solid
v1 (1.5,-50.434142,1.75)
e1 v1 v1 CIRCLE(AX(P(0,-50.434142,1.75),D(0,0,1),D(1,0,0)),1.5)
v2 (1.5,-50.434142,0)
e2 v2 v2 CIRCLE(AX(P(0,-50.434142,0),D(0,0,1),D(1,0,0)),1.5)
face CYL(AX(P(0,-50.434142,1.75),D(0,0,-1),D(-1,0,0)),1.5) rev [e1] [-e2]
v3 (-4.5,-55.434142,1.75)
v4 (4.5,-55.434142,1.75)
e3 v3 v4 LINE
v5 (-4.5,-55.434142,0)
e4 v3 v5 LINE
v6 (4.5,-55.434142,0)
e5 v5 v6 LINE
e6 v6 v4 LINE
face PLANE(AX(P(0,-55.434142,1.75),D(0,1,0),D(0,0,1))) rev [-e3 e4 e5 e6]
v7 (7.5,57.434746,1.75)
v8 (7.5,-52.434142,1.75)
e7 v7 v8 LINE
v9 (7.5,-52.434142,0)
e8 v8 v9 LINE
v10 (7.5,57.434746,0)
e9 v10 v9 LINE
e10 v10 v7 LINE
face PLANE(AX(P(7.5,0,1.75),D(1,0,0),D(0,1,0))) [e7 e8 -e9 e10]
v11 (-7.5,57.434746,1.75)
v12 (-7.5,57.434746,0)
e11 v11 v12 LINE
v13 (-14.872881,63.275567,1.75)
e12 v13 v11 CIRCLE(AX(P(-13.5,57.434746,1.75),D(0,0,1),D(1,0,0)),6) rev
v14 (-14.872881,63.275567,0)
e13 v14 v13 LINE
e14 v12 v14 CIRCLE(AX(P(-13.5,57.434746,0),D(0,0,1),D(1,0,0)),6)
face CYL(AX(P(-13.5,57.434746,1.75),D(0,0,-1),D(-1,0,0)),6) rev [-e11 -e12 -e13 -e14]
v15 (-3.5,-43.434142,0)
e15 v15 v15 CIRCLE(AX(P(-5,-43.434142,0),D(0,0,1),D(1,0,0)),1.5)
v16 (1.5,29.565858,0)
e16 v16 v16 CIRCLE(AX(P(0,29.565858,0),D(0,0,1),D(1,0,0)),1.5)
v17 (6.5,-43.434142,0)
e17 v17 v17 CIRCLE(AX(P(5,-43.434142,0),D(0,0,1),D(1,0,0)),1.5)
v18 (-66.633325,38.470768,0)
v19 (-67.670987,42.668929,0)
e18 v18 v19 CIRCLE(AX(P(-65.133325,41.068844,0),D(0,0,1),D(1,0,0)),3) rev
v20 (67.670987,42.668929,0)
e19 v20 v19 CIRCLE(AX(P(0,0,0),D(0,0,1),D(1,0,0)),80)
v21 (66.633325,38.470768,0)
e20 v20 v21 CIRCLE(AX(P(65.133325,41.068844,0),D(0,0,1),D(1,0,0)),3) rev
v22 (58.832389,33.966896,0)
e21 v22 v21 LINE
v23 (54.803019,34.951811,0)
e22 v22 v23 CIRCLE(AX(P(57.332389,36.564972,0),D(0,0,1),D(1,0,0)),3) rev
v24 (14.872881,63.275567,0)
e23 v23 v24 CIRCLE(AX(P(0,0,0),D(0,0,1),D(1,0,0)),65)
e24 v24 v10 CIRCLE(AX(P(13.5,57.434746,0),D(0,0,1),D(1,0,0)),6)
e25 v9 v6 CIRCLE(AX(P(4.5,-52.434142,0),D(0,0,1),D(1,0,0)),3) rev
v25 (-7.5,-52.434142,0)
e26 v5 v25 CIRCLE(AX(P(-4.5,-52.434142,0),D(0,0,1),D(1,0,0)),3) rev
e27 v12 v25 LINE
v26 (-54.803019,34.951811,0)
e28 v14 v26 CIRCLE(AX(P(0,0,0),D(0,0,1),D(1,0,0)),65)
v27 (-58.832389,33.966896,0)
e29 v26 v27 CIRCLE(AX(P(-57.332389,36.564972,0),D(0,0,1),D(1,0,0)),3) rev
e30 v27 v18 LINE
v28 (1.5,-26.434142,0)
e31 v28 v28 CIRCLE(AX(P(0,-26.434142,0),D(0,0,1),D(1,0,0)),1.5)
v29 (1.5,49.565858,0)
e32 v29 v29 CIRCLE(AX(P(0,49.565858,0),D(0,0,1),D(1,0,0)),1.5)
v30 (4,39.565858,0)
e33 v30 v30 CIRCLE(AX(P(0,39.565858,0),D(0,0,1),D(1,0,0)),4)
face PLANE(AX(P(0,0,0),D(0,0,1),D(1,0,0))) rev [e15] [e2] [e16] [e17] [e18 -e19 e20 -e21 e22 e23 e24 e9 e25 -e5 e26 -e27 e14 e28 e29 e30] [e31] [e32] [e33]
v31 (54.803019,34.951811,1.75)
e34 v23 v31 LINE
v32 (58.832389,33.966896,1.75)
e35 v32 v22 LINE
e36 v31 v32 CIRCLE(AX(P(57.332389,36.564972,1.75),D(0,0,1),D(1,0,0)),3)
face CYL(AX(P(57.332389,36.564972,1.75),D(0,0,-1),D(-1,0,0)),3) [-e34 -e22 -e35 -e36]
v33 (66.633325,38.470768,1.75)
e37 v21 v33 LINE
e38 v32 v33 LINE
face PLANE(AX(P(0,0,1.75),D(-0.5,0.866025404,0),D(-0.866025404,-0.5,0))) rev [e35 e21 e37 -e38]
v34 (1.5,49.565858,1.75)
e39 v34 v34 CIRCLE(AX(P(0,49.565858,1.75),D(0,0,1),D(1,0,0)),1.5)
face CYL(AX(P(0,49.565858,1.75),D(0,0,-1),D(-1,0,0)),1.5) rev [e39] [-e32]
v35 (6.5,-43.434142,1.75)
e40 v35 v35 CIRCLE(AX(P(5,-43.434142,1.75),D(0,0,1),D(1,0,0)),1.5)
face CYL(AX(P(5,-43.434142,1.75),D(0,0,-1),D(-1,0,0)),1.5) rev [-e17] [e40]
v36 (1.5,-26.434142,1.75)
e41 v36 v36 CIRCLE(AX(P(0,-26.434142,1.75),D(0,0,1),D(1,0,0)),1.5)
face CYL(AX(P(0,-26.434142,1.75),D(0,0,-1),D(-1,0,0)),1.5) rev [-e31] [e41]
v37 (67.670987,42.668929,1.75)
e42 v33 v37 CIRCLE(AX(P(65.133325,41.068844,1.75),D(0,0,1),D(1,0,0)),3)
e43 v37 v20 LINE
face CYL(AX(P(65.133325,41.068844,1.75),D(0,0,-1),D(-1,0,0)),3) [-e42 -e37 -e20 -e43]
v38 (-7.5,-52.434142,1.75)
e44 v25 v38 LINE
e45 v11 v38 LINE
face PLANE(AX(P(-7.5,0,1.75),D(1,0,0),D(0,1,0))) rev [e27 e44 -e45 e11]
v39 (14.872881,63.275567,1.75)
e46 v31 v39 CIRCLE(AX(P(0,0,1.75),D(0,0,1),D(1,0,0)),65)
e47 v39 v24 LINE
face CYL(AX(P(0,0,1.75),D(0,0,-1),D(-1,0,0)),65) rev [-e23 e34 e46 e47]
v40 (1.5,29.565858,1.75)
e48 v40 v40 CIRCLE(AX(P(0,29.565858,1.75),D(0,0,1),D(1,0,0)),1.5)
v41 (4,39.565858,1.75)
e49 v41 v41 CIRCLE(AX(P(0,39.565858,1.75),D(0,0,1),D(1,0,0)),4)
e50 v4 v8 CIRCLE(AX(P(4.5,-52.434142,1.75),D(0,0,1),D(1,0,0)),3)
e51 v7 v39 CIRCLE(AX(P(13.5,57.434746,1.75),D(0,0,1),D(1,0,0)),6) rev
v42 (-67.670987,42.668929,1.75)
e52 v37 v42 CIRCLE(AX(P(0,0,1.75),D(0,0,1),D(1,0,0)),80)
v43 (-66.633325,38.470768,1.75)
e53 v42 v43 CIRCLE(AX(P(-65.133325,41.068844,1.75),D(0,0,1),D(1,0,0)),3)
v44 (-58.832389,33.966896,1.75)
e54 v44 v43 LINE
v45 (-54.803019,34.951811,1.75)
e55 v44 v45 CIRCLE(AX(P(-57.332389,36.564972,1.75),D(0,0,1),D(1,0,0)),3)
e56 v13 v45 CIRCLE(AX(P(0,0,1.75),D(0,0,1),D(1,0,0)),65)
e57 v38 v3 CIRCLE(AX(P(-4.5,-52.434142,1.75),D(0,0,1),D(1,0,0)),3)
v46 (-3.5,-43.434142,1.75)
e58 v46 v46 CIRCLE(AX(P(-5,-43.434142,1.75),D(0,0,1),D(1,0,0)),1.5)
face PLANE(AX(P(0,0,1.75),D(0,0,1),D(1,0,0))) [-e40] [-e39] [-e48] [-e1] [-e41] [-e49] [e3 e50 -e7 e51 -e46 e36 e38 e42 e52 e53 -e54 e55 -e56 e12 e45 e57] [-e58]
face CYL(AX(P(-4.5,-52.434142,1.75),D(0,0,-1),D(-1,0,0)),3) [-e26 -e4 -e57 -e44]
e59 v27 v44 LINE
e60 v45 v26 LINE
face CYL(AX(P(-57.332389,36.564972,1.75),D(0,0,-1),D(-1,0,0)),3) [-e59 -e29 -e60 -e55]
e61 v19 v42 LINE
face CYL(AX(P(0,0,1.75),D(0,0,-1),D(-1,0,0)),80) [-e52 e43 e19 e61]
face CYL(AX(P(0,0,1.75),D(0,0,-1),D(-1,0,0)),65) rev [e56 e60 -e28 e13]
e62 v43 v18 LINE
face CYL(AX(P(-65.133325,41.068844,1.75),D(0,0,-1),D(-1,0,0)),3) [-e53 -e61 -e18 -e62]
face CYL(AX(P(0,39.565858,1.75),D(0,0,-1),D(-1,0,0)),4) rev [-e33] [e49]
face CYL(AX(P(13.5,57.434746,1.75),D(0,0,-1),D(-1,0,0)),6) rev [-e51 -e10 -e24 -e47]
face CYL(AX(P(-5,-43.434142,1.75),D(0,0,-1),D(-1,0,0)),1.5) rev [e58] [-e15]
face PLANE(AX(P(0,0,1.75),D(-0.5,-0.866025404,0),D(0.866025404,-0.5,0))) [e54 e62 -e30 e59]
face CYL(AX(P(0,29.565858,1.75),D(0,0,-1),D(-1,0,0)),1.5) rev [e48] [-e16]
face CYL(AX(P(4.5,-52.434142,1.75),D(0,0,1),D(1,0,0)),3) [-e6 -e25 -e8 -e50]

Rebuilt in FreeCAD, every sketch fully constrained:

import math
import FreeCAD as App
import Part
import Sketcher
from FreeCAD import Vector
Q = App.Units.Quantity


def edges_at(feature, points):
    """Names of the edges that pass closest to the given points."""
    edges = feature.Shape.Edges
    near = lambda p: min(range(len(edges)), key=lambda i: edges[i].distToShape(Part.Vertex(*p))[0])
    return sorted({f"Edge{near(p) + 1}" for p in points})

doc = App.newDocument("Part")
body = doc.addObject("PartDesign::Body", "Body")

# Sketch on XY plane
sketch1 = body.newObject("Sketcher::SketchObject", "Sketch")
sketch1.AttachmentSupport = (doc.getObject("XY_Plane"), [""])
sketch1.MapMode = "FlatFace"
sketch1.addGeometry([
    Part.ArcOfCircle(Part.Circle(Vector(0, 0, 0), Vector(0, 0, 1), 65), math.radians(30), math.radians(83)),  # 0
    Part.LineSegment(Vector(56.3, 32.5, 0), Vector(69.3, 40, 0)),  # 1
    Part.ArcOfCircle(Part.Circle(Vector(0, 0, 0), Vector(0, 0, 1), 80), math.radians(30), math.radians(150)),  # 2
    Part.LineSegment(Vector(-69.3, 40, 0), Vector(-56.3, 32.5, 0)),  # 3
    Part.ArcOfCircle(Part.Circle(Vector(0, 0, 0), Vector(0, 0, 1), 65), math.radians(97), math.radians(150)),  # 4
    Part.LineSegment(Vector(-7.5, 64.6, 0), Vector(-7.5, -55.4, 0)),  # 5
    Part.LineSegment(Vector(-7.5, -55.4, 0), Vector(7.5, -55.4, 0)),  # 6
    Part.LineSegment(Vector(7.5, -55.4, 0), Vector(7.5, 64.6, 0)),  # 7
    Part.Circle(Vector(0, 49.6, 0), Vector(0, 0, 1), 1.5),  # 8
    Part.Circle(Vector(-5, -43.4, 0), Vector(0, 0, 1), 1.5),  # 9
    Part.Circle(Vector(0, -50.4, 0), Vector(0, 0, 1), 1.5),  # 10
    Part.Circle(Vector(0, -26.4, 0), Vector(0, 0, 1), 1.5),  # 11
    Part.Circle(Vector(5, -43.4, 0), Vector(0, 0, 1), 1.5),  # 12
    Part.Circle(Vector(0, 29.6, 0), Vector(0, 0, 1), 1.5),  # 13
    Part.Circle(Vector(0, 39.6, 0), Vector(0, 0, 1), 4),  # 14
], False)
sketch1.addConstraint([
    Sketcher.Constraint("Coincident", 0, 1, 1, 1),
    Sketcher.Constraint("Coincident", 1, 2, 2, 1),
    Sketcher.Constraint("Coincident", 2, 2, 3, 1),
    Sketcher.Constraint("Coincident", 3, 2, 4, 2),
    Sketcher.Constraint("Coincident", 4, 1, 5, 1),
    Sketcher.Constraint("Coincident", 5, 2, 6, 1),
    Sketcher.Constraint("Coincident", 6, 2, 7, 1),
    Sketcher.Constraint("Coincident", 7, 2, 0, 2),
    Sketcher.Constraint("Vertical", 5),
    Sketcher.Constraint("Horizontal", 6),
    Sketcher.Constraint("Vertical", 7),
    Sketcher.Constraint("Coincident", 0, 3, -1, 1),
    Sketcher.Constraint("Coincident", 2, 3, -1, 1),
    Sketcher.Constraint("Coincident", 4, 3, -1, 1),
    Sketcher.Constraint("Equal", 0, 4),
    Sketcher.Constraint("Equal", 8, 9),
    Sketcher.Constraint("Equal", 9, 10),
    Sketcher.Constraint("Equal", 10, 11),
    Sketcher.Constraint("Equal", 11, 12),
    Sketcher.Constraint("Equal", 12, 13),
    Sketcher.Constraint("Symmetric", 9, 3, 12, 3, -2),
    Sketcher.Constraint("PointOnObject", 8, 3, -2),
    Sketcher.Constraint("PointOnObject", 10, 3, -2),
    Sketcher.Constraint("PointOnObject", 11, 3, -2),
    Sketcher.Constraint("PointOnObject", 13, 3, -2),
    Sketcher.Constraint("PointOnObject", 14, 3, -2),
    Sketcher.Constraint("Horizontal", 1, 2, 2, 2),
    Sketcher.Constraint("Horizontal", 0, 1, 3, 2),
    Sketcher.Constraint("Horizontal", 4, 1, 7, 2),
    Sketcher.Constraint("Diameter", 8, Q("3 mm")),
    Sketcher.Constraint("Diameter", 14, Q("8 mm")),
    Sketcher.Constraint("Radius", 0, Q("65 mm")),
    Sketcher.Constraint("Radius", 2, Q("80 mm")),
    Sketcher.Constraint("DistanceX", 6, 1, 6, 2, Q("15 mm")),
    Sketcher.Constraint("DistanceY", 5, 2, 5, 1, Q("120 mm")),
    Sketcher.Constraint("Angle", 1, Q("30 deg")),
    Sketcher.Constraint("DistanceX", 9, 3, -1, 1, Q("5 mm")),
    Sketcher.Constraint("DistanceY", -1, 1, 1, 2, Q("40 mm")),
    Sketcher.Constraint("DistanceY", 9, 3, 8, 3, Q("93 mm")),
    Sketcher.Constraint("DistanceY", 10, 3, 9, 3, Q("7 mm")),
    Sketcher.Constraint("DistanceY", 9, 3, 11, 3, Q("17 mm")),
    Sketcher.Constraint("DistanceY", 13, 3, 8, 3, Q("20 mm")),
    Sketcher.Constraint("DistanceY", 13, 3, 14, 3, Q("10 mm")),
    Sketcher.Constraint("DistanceY", 8, 3, 4, 1, Q("15 mm")),
])
pad1 = body.newObject("PartDesign::Pad", "Pad")
pad1.Profile = sketch1
pad1.Length = 1.75
doc.recompute()

fillet = body.newObject("PartDesign::Fillet", "Fillet")
fillet.Base = (pad1, edges_at(pad1, [
    (7.5, -55.434, 0.875),
    (-7.5, -55.434, 0.875),
    (-56.292, 32.5, 0.875),
    (-69.282, 40, 0.875),
    (69.282, 40, 0.875),
    (56.292, 32.5, 0.875),
]))
fillet.Radius = 3
doc.recompute()

fillet2 = body.newObject("PartDesign::Fillet", "Fillet001")
fillet2.Base = (fillet, edges_at(fillet, [(7.5, 64.566, 0.875), (-7.5, 64.566, 0.875)]))
fillet2.Radius = 6

doc.recompute()
